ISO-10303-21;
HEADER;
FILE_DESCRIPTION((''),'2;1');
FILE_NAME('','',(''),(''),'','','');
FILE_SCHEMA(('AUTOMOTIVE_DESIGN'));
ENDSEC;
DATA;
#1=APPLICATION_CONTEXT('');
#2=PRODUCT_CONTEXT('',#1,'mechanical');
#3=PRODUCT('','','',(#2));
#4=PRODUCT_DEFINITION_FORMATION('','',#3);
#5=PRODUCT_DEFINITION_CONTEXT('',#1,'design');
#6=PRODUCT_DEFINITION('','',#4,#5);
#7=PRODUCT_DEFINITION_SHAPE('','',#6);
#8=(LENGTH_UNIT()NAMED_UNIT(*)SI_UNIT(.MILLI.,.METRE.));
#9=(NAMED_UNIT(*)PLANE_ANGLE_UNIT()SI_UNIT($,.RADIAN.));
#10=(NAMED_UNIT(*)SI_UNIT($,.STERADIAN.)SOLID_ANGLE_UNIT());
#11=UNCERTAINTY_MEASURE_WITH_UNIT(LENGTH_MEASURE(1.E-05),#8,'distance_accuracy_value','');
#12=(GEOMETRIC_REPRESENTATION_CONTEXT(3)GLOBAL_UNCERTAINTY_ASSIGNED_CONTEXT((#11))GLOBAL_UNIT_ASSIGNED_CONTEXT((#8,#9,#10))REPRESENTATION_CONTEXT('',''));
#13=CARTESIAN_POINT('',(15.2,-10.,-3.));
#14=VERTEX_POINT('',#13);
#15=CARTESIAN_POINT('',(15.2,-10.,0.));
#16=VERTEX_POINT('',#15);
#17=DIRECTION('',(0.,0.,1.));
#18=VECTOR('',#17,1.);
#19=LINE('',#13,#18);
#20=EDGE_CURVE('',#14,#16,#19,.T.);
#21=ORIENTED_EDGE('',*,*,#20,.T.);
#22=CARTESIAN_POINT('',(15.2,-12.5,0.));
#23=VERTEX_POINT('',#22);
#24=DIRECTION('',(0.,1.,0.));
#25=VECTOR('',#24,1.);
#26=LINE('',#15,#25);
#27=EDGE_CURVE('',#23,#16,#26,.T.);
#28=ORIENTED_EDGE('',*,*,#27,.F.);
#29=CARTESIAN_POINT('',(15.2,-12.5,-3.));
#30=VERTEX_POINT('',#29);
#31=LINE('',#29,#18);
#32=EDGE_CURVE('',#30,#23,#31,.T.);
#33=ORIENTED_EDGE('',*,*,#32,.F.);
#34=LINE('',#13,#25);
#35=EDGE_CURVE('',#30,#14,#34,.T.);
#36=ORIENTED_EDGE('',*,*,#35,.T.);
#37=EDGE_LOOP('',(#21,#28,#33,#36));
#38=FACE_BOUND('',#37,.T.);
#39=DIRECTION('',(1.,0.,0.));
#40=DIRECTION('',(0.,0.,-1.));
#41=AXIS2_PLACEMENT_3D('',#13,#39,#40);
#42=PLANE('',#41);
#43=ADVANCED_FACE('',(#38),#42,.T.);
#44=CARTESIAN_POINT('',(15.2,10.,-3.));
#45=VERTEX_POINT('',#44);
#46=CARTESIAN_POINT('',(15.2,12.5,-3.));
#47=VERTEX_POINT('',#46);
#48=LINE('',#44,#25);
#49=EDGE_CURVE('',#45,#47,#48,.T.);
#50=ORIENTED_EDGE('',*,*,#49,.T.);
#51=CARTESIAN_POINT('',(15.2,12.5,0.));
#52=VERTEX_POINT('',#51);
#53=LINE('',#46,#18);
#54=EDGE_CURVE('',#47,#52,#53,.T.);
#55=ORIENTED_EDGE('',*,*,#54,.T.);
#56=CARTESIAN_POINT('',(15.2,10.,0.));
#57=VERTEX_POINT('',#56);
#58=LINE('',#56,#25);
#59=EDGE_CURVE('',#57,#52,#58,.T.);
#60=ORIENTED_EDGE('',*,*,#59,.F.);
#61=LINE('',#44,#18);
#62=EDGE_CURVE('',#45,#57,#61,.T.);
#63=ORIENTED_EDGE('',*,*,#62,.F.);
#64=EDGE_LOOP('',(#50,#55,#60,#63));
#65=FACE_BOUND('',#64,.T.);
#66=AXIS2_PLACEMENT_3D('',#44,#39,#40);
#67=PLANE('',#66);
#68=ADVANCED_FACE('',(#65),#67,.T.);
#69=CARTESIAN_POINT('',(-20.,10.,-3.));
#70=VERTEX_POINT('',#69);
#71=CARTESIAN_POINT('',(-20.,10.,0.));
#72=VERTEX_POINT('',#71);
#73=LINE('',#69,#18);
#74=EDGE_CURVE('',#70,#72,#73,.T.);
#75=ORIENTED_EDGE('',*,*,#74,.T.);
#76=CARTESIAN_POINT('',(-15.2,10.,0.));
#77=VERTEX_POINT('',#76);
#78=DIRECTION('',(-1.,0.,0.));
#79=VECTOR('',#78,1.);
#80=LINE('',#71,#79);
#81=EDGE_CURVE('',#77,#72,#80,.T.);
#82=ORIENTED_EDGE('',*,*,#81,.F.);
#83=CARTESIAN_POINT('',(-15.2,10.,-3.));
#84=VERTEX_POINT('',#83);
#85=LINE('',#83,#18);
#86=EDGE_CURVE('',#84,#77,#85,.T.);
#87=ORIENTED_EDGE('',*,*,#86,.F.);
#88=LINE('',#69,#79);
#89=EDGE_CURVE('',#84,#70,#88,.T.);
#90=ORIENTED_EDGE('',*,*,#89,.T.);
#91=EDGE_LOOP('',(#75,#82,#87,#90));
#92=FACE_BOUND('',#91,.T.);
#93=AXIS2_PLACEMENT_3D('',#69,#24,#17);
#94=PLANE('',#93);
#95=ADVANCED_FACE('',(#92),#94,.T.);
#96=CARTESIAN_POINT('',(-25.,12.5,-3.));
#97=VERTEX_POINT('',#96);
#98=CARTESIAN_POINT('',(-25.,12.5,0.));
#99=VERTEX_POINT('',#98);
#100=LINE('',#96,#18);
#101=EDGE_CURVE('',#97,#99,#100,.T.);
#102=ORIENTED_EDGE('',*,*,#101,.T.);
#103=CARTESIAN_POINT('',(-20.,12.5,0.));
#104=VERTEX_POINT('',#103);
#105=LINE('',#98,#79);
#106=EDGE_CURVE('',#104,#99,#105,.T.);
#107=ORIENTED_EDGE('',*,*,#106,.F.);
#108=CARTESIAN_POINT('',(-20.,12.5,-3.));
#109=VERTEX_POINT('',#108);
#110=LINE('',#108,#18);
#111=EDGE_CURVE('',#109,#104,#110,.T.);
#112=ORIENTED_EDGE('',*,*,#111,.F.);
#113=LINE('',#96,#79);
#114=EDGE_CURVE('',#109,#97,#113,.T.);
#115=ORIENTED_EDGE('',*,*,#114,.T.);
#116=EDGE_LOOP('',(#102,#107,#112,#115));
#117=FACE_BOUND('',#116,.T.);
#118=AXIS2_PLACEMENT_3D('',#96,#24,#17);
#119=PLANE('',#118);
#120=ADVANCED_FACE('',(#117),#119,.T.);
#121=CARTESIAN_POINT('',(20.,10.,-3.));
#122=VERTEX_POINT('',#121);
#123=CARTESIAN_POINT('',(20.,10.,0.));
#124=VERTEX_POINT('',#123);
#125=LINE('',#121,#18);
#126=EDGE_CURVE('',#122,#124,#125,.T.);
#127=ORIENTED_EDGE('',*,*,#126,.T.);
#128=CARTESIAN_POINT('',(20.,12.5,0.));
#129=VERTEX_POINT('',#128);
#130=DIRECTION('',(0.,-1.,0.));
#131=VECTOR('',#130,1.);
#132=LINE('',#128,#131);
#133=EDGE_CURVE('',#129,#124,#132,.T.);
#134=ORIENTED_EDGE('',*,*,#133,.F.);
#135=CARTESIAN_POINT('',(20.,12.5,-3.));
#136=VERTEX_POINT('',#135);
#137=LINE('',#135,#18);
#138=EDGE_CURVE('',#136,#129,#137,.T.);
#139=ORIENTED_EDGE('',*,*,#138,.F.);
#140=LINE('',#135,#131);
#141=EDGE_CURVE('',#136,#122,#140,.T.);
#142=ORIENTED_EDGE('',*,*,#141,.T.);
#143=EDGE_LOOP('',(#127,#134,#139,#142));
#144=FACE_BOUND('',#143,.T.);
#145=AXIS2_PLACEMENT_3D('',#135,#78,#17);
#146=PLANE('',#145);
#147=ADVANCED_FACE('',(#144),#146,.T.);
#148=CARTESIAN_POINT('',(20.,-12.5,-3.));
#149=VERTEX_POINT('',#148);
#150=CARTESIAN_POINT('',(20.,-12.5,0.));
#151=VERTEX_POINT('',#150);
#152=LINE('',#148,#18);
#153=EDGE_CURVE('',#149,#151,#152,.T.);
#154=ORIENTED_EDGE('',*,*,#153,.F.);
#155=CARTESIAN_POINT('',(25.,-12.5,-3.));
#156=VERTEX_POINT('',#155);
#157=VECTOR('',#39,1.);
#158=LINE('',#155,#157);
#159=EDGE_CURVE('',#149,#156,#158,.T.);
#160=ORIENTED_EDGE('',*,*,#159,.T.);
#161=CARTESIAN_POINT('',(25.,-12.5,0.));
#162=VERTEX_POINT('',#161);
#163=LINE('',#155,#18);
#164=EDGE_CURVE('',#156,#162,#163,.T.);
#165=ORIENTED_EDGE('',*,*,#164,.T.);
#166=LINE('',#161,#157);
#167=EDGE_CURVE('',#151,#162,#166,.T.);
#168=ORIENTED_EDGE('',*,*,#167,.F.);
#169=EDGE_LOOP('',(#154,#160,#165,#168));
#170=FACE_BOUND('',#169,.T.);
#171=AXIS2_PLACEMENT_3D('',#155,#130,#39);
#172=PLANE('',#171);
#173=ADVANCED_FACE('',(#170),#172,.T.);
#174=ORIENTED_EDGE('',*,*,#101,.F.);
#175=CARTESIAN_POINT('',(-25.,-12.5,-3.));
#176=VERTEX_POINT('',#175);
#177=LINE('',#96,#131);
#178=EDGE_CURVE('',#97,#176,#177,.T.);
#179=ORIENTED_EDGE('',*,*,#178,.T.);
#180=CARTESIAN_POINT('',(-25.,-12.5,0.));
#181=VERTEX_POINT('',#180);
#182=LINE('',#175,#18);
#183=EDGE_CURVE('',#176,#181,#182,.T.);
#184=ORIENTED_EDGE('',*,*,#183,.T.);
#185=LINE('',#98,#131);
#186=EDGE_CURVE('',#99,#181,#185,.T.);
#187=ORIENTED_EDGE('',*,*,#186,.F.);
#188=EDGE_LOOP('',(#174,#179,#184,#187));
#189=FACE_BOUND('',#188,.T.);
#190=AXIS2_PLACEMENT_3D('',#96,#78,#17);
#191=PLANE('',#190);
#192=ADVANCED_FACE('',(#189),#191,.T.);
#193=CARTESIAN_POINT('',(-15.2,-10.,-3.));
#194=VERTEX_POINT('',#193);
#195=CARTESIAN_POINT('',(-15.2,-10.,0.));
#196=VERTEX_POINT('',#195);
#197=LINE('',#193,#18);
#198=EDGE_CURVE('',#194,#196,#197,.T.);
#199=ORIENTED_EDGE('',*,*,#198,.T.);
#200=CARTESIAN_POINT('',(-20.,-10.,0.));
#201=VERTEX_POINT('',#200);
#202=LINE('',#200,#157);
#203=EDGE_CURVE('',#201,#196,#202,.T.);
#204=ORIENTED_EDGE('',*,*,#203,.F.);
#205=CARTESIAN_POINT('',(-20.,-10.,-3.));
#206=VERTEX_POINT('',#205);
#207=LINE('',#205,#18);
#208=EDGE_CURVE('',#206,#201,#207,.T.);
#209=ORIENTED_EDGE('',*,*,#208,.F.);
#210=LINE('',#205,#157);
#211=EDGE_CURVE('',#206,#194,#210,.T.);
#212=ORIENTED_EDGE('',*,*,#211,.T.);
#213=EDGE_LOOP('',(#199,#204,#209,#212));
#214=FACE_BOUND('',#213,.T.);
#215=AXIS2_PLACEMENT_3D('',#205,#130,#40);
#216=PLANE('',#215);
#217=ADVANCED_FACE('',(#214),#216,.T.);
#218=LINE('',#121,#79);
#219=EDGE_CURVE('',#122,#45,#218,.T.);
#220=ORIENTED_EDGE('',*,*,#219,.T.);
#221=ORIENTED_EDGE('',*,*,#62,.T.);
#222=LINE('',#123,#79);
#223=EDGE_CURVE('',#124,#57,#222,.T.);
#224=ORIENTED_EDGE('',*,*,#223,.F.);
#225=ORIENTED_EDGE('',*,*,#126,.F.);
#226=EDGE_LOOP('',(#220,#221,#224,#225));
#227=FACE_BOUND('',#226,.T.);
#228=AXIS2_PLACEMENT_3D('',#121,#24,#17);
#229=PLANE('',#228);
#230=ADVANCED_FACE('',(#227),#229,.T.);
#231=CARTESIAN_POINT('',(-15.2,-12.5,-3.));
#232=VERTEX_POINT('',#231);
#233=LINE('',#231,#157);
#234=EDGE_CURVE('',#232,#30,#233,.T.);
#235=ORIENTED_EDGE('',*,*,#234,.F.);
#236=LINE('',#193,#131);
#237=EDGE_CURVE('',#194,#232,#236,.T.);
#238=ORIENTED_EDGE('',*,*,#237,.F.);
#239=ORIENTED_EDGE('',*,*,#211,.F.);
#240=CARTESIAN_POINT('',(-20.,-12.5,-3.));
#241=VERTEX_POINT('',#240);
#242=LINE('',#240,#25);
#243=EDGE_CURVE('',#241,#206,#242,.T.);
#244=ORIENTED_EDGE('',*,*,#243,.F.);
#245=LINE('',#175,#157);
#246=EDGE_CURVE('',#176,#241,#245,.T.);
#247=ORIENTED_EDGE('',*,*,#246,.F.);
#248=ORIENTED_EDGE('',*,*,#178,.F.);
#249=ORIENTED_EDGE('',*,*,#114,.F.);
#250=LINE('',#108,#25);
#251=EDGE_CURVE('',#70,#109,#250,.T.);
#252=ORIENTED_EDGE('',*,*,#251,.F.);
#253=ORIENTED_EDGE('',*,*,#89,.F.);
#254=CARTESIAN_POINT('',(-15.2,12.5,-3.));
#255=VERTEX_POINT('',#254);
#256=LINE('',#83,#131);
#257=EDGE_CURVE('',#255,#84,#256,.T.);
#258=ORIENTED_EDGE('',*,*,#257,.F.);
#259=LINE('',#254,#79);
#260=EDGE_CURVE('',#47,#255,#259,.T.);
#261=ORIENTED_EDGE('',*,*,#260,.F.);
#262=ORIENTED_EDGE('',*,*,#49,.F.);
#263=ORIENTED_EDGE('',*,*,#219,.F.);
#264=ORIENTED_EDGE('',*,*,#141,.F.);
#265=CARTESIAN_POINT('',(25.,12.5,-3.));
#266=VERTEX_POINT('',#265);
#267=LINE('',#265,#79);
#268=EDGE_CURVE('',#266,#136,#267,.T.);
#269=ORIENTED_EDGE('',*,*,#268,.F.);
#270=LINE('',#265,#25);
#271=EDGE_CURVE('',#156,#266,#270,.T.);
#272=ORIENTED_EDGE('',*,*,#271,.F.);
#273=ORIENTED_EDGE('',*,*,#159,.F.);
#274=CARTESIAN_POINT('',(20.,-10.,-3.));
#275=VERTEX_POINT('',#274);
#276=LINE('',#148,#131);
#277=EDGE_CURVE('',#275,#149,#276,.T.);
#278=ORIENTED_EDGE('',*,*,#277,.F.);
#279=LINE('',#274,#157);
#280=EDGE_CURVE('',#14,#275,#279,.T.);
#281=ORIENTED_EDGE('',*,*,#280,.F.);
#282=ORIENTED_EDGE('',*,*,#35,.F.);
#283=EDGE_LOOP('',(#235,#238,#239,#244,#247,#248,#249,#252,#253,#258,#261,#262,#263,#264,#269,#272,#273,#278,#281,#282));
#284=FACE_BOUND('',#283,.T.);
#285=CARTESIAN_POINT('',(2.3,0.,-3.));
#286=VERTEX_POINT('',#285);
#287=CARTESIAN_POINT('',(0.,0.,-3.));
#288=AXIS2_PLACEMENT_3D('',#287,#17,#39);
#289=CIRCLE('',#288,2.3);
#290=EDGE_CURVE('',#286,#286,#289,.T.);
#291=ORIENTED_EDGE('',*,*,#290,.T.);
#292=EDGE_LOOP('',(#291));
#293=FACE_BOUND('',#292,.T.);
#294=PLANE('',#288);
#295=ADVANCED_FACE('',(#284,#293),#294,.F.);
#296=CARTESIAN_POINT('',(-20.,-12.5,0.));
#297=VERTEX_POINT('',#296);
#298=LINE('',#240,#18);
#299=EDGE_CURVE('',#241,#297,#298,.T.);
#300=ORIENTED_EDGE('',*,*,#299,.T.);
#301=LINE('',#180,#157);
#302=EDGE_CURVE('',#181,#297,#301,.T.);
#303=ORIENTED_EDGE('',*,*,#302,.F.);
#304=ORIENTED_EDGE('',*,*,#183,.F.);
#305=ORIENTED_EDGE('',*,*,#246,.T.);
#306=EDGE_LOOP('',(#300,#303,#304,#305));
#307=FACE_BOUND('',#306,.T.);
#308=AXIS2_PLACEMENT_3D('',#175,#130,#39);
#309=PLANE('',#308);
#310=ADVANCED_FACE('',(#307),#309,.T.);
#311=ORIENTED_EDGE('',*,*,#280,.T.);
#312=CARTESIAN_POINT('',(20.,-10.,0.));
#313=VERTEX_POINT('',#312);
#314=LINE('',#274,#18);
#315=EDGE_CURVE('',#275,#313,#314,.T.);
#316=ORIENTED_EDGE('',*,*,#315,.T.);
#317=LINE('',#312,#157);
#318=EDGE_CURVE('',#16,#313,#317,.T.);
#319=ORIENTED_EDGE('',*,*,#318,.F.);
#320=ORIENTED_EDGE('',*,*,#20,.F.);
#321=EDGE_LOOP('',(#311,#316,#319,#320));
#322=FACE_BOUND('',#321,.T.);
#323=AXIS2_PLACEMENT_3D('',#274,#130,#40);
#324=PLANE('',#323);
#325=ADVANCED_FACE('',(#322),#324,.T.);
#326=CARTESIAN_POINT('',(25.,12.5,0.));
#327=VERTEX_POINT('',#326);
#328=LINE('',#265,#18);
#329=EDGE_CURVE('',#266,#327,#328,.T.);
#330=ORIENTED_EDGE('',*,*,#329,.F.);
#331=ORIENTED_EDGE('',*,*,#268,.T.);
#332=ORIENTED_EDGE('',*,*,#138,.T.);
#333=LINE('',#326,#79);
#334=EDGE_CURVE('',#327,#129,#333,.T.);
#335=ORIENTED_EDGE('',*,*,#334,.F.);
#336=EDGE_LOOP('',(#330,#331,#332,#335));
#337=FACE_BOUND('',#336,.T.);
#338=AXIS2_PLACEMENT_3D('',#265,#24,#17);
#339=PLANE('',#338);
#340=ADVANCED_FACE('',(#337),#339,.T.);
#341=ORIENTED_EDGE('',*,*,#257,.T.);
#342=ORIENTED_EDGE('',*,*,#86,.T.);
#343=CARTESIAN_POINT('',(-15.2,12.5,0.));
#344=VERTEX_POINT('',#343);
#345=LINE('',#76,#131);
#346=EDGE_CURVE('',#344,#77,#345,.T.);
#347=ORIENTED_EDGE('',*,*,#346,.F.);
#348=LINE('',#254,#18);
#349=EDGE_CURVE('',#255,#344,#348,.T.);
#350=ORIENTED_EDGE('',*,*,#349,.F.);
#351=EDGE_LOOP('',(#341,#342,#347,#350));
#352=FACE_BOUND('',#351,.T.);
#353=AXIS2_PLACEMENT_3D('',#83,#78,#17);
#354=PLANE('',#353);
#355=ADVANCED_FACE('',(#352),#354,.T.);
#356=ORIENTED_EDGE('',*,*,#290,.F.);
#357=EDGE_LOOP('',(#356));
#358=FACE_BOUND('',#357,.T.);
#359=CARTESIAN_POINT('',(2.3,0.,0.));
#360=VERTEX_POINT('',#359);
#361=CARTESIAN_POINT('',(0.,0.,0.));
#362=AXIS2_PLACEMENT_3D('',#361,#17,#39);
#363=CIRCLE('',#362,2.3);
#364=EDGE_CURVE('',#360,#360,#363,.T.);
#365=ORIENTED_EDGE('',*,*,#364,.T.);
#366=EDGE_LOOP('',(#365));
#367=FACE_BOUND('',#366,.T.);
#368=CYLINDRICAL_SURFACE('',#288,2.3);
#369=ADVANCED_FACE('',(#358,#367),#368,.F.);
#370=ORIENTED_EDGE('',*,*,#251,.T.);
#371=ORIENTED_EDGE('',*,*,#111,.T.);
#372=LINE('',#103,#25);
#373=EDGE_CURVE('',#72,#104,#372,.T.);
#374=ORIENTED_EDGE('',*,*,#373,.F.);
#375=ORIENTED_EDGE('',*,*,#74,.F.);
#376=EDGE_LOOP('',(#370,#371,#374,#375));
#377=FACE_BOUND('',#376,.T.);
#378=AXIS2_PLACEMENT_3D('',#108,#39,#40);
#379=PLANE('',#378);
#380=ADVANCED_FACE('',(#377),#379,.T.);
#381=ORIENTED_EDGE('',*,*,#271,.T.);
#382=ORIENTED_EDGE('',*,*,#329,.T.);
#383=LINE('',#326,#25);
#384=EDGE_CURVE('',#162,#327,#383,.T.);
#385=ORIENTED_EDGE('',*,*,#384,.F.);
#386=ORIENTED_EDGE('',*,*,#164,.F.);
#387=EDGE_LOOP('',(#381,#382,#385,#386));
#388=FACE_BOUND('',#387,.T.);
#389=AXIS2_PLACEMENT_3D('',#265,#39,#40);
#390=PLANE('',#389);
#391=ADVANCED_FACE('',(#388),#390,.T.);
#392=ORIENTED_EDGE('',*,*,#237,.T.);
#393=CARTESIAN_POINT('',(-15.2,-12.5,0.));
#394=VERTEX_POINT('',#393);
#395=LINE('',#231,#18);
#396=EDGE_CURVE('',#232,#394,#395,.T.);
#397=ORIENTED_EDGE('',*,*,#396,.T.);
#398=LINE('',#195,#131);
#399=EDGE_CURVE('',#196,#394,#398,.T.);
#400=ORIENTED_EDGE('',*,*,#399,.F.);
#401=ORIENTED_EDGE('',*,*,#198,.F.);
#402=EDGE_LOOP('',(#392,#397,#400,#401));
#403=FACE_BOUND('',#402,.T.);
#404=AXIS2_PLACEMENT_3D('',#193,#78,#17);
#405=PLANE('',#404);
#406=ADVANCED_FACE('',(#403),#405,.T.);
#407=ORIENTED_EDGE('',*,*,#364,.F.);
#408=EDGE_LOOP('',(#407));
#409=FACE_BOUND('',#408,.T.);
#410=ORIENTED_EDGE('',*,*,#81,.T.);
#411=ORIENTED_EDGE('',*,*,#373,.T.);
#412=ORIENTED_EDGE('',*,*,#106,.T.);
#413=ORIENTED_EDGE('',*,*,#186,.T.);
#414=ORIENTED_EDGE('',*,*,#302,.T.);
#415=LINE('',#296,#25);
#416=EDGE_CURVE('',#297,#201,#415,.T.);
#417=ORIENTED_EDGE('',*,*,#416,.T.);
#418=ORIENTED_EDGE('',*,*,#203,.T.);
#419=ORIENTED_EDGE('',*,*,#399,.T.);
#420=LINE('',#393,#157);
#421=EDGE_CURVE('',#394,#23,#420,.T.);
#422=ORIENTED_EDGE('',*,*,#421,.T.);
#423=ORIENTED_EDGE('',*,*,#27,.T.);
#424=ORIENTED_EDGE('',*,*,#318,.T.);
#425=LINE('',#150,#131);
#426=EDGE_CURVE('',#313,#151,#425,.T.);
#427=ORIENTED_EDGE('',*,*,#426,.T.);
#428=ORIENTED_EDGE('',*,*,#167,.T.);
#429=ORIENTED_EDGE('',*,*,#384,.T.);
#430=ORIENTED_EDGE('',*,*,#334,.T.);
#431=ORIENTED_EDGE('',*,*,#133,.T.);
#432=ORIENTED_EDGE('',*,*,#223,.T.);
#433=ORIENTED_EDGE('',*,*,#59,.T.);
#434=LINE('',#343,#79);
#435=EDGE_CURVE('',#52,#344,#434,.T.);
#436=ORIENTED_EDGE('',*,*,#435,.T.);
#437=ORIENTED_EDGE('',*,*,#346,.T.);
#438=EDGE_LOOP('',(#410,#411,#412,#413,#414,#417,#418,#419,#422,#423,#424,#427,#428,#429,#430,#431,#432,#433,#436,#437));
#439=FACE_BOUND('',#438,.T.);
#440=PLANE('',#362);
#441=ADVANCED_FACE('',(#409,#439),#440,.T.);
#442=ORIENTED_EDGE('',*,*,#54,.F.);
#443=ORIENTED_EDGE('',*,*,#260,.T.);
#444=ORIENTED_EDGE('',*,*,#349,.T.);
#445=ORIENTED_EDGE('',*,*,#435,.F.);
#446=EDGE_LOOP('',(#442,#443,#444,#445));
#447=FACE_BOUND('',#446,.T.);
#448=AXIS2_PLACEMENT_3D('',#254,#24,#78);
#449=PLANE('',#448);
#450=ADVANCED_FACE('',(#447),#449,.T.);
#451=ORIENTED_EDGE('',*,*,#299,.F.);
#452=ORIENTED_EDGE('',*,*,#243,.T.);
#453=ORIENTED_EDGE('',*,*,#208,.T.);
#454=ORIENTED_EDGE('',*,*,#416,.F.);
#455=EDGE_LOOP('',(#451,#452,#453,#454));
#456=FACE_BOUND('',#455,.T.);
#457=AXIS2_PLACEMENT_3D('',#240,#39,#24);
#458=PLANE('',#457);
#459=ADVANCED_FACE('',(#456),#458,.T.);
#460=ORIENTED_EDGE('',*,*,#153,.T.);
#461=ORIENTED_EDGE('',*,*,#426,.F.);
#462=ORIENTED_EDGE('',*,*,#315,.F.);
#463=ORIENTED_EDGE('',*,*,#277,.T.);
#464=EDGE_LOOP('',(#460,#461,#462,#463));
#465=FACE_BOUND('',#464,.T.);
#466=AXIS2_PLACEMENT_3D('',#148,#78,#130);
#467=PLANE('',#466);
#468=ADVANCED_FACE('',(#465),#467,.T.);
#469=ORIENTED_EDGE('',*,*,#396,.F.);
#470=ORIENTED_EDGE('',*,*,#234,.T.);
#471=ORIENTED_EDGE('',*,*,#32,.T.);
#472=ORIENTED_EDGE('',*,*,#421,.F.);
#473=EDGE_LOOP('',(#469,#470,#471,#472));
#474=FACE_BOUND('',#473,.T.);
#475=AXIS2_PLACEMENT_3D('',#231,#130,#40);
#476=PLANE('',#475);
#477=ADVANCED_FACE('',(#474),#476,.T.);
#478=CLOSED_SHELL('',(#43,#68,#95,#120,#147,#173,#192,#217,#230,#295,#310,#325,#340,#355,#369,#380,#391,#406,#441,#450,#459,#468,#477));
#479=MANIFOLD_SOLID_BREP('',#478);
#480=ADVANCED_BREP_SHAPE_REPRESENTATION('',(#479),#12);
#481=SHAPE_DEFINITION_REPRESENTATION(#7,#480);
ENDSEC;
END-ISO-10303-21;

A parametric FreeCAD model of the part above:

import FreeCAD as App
import Part
import Sketcher
from FreeCAD import Vector


def add_polygon(sketch, points):
    """Adds a closed chain of lines whose ends are joined by coincident constraints."""
    first, n = sketch.GeometryCount, len(points)
    for a, b in zip(points, points[1:] + points[:1]):
        sketch.addGeometry(Part.LineSegment(App.Vector(*a, 0), App.Vector(*b, 0)), False)
    for i in range(n):
        sketch.addConstraint(Sketcher.Constraint("Coincident", first + i, 2, first + (i + 1) % n, 1))

doc = App.newDocument("Part")
body = doc.addObject("PartDesign::Body", "Body")

# Sketch on XY plane
sketch1 = body.newObject("Sketcher::SketchObject", "Sketch")
sketch1.AttachmentSupport = (doc.getObject("XY_Plane"), [""])
sketch1.MapMode = "FlatFace"
add_polygon(sketch1, [(-20, 10), (-20, 12.5), (-25, 12.5), (-25, -12.5), (-20, -12.5), (-20, -10), (-15.2, -10), (-15.2, -12.5), (15.2, -12.5), (15.2, -10), (20, -10), (20, -12.5), (25, -12.5), (25, 12.5), (20, 12.5), (20, 10), (15.2, 10), (15.2, 12.5), (-15.2, 12.5), (-15.2, 10)])  # lines 0-19
sketch1.addConstraint([
    Sketcher.Constraint("Vertical", 0),
    Sketcher.Constraint("Horizontal", 1),
    Sketcher.Constraint("Vertical", 2),
    Sketcher.Constraint("Horizontal", 3),
    Sketcher.Constraint("Vertical", 4),
    Sketcher.Constraint("Horizontal", 5),
    Sketcher.Constraint("Vertical", 6),
    Sketcher.Constraint("Horizontal", 7),
    Sketcher.Constraint("Vertical", 8),
    Sketcher.Constraint("Horizontal", 9),
    Sketcher.Constraint("Vertical", 10),
    Sketcher.Constraint("Horizontal", 11),
    Sketcher.Constraint("Vertical", 12),
    Sketcher.Constraint("Horizontal", 13),
    Sketcher.Constraint("Vertical", 14),
    Sketcher.Constraint("Horizontal", 15),
    Sketcher.Constraint("Vertical", 16),
    Sketcher.Constraint("Horizontal", 17),
    Sketcher.Constraint("Vertical", 18),
    Sketcher.Constraint("Horizontal", 19),
    Sketcher.Constraint("Symmetric", 0, 2, 10, 2, -1, 1),
    Sketcher.Constraint("Symmetric", 2, 2, 12, 2, -1, 1),
    Sketcher.Constraint("Symmetric", 4, 2, 14, 2, -1, 1),
    Sketcher.Constraint("Symmetric", 6, 2, 16, 2, -1, 1),
    Sketcher.Constraint("Symmetric", 8, 2, 18, 2, -1, 1),
    Sketcher.Constraint("Symmetric", 5, 2, 8, 2, -2),
    Sketcher.Constraint("Symmetric", 3, 2, 10, 2, -2),
    Sketcher.Constraint("Horizontal", 3, 2, 6, 2),
    Sketcher.Constraint("DistanceX", 1, 2, 1, 1, 5.0),
    Sketcher.Constraint("DistanceY", 2, 2, 2, 1, 25.0),
    Sketcher.Constraint("DistanceX", 5, 1, 5, 2, 4.8),
    Sketcher.Constraint("DistanceX", 7, 1, 7, 2, 30.4),
    Sketcher.Constraint("DistanceY", 0, 1, 0, 2, 2.5),
])
pad1 = body.newObject("PartDesign::Pad", "Pad")
pad1.Profile = sketch1
pad1.Length = 3
pad1.Reversed = True

# Sketch on XY plane
sketch2 = body.newObject("Sketcher::SketchObject", "Sketch001")
sketch2.AttachmentSupport = (doc.getObject("XY_Plane"), [""])
sketch2.MapMode = "FlatFace"
sketch2.addGeometry(Part.Circle(Vector(0, 0, 0), Vector(0, 0, 1), 2.3), False)
sketch2.addConstraint([
    Sketcher.Constraint("Coincident", 0, 3, -1, 1),
    Sketcher.Constraint("Diameter", 0, 4.6),
])
pocket1 = body.newObject("PartDesign::Pocket", "Pocket")
pocket1.Profile = sketch2
pocket1.Length = 3

doc.recompute()
